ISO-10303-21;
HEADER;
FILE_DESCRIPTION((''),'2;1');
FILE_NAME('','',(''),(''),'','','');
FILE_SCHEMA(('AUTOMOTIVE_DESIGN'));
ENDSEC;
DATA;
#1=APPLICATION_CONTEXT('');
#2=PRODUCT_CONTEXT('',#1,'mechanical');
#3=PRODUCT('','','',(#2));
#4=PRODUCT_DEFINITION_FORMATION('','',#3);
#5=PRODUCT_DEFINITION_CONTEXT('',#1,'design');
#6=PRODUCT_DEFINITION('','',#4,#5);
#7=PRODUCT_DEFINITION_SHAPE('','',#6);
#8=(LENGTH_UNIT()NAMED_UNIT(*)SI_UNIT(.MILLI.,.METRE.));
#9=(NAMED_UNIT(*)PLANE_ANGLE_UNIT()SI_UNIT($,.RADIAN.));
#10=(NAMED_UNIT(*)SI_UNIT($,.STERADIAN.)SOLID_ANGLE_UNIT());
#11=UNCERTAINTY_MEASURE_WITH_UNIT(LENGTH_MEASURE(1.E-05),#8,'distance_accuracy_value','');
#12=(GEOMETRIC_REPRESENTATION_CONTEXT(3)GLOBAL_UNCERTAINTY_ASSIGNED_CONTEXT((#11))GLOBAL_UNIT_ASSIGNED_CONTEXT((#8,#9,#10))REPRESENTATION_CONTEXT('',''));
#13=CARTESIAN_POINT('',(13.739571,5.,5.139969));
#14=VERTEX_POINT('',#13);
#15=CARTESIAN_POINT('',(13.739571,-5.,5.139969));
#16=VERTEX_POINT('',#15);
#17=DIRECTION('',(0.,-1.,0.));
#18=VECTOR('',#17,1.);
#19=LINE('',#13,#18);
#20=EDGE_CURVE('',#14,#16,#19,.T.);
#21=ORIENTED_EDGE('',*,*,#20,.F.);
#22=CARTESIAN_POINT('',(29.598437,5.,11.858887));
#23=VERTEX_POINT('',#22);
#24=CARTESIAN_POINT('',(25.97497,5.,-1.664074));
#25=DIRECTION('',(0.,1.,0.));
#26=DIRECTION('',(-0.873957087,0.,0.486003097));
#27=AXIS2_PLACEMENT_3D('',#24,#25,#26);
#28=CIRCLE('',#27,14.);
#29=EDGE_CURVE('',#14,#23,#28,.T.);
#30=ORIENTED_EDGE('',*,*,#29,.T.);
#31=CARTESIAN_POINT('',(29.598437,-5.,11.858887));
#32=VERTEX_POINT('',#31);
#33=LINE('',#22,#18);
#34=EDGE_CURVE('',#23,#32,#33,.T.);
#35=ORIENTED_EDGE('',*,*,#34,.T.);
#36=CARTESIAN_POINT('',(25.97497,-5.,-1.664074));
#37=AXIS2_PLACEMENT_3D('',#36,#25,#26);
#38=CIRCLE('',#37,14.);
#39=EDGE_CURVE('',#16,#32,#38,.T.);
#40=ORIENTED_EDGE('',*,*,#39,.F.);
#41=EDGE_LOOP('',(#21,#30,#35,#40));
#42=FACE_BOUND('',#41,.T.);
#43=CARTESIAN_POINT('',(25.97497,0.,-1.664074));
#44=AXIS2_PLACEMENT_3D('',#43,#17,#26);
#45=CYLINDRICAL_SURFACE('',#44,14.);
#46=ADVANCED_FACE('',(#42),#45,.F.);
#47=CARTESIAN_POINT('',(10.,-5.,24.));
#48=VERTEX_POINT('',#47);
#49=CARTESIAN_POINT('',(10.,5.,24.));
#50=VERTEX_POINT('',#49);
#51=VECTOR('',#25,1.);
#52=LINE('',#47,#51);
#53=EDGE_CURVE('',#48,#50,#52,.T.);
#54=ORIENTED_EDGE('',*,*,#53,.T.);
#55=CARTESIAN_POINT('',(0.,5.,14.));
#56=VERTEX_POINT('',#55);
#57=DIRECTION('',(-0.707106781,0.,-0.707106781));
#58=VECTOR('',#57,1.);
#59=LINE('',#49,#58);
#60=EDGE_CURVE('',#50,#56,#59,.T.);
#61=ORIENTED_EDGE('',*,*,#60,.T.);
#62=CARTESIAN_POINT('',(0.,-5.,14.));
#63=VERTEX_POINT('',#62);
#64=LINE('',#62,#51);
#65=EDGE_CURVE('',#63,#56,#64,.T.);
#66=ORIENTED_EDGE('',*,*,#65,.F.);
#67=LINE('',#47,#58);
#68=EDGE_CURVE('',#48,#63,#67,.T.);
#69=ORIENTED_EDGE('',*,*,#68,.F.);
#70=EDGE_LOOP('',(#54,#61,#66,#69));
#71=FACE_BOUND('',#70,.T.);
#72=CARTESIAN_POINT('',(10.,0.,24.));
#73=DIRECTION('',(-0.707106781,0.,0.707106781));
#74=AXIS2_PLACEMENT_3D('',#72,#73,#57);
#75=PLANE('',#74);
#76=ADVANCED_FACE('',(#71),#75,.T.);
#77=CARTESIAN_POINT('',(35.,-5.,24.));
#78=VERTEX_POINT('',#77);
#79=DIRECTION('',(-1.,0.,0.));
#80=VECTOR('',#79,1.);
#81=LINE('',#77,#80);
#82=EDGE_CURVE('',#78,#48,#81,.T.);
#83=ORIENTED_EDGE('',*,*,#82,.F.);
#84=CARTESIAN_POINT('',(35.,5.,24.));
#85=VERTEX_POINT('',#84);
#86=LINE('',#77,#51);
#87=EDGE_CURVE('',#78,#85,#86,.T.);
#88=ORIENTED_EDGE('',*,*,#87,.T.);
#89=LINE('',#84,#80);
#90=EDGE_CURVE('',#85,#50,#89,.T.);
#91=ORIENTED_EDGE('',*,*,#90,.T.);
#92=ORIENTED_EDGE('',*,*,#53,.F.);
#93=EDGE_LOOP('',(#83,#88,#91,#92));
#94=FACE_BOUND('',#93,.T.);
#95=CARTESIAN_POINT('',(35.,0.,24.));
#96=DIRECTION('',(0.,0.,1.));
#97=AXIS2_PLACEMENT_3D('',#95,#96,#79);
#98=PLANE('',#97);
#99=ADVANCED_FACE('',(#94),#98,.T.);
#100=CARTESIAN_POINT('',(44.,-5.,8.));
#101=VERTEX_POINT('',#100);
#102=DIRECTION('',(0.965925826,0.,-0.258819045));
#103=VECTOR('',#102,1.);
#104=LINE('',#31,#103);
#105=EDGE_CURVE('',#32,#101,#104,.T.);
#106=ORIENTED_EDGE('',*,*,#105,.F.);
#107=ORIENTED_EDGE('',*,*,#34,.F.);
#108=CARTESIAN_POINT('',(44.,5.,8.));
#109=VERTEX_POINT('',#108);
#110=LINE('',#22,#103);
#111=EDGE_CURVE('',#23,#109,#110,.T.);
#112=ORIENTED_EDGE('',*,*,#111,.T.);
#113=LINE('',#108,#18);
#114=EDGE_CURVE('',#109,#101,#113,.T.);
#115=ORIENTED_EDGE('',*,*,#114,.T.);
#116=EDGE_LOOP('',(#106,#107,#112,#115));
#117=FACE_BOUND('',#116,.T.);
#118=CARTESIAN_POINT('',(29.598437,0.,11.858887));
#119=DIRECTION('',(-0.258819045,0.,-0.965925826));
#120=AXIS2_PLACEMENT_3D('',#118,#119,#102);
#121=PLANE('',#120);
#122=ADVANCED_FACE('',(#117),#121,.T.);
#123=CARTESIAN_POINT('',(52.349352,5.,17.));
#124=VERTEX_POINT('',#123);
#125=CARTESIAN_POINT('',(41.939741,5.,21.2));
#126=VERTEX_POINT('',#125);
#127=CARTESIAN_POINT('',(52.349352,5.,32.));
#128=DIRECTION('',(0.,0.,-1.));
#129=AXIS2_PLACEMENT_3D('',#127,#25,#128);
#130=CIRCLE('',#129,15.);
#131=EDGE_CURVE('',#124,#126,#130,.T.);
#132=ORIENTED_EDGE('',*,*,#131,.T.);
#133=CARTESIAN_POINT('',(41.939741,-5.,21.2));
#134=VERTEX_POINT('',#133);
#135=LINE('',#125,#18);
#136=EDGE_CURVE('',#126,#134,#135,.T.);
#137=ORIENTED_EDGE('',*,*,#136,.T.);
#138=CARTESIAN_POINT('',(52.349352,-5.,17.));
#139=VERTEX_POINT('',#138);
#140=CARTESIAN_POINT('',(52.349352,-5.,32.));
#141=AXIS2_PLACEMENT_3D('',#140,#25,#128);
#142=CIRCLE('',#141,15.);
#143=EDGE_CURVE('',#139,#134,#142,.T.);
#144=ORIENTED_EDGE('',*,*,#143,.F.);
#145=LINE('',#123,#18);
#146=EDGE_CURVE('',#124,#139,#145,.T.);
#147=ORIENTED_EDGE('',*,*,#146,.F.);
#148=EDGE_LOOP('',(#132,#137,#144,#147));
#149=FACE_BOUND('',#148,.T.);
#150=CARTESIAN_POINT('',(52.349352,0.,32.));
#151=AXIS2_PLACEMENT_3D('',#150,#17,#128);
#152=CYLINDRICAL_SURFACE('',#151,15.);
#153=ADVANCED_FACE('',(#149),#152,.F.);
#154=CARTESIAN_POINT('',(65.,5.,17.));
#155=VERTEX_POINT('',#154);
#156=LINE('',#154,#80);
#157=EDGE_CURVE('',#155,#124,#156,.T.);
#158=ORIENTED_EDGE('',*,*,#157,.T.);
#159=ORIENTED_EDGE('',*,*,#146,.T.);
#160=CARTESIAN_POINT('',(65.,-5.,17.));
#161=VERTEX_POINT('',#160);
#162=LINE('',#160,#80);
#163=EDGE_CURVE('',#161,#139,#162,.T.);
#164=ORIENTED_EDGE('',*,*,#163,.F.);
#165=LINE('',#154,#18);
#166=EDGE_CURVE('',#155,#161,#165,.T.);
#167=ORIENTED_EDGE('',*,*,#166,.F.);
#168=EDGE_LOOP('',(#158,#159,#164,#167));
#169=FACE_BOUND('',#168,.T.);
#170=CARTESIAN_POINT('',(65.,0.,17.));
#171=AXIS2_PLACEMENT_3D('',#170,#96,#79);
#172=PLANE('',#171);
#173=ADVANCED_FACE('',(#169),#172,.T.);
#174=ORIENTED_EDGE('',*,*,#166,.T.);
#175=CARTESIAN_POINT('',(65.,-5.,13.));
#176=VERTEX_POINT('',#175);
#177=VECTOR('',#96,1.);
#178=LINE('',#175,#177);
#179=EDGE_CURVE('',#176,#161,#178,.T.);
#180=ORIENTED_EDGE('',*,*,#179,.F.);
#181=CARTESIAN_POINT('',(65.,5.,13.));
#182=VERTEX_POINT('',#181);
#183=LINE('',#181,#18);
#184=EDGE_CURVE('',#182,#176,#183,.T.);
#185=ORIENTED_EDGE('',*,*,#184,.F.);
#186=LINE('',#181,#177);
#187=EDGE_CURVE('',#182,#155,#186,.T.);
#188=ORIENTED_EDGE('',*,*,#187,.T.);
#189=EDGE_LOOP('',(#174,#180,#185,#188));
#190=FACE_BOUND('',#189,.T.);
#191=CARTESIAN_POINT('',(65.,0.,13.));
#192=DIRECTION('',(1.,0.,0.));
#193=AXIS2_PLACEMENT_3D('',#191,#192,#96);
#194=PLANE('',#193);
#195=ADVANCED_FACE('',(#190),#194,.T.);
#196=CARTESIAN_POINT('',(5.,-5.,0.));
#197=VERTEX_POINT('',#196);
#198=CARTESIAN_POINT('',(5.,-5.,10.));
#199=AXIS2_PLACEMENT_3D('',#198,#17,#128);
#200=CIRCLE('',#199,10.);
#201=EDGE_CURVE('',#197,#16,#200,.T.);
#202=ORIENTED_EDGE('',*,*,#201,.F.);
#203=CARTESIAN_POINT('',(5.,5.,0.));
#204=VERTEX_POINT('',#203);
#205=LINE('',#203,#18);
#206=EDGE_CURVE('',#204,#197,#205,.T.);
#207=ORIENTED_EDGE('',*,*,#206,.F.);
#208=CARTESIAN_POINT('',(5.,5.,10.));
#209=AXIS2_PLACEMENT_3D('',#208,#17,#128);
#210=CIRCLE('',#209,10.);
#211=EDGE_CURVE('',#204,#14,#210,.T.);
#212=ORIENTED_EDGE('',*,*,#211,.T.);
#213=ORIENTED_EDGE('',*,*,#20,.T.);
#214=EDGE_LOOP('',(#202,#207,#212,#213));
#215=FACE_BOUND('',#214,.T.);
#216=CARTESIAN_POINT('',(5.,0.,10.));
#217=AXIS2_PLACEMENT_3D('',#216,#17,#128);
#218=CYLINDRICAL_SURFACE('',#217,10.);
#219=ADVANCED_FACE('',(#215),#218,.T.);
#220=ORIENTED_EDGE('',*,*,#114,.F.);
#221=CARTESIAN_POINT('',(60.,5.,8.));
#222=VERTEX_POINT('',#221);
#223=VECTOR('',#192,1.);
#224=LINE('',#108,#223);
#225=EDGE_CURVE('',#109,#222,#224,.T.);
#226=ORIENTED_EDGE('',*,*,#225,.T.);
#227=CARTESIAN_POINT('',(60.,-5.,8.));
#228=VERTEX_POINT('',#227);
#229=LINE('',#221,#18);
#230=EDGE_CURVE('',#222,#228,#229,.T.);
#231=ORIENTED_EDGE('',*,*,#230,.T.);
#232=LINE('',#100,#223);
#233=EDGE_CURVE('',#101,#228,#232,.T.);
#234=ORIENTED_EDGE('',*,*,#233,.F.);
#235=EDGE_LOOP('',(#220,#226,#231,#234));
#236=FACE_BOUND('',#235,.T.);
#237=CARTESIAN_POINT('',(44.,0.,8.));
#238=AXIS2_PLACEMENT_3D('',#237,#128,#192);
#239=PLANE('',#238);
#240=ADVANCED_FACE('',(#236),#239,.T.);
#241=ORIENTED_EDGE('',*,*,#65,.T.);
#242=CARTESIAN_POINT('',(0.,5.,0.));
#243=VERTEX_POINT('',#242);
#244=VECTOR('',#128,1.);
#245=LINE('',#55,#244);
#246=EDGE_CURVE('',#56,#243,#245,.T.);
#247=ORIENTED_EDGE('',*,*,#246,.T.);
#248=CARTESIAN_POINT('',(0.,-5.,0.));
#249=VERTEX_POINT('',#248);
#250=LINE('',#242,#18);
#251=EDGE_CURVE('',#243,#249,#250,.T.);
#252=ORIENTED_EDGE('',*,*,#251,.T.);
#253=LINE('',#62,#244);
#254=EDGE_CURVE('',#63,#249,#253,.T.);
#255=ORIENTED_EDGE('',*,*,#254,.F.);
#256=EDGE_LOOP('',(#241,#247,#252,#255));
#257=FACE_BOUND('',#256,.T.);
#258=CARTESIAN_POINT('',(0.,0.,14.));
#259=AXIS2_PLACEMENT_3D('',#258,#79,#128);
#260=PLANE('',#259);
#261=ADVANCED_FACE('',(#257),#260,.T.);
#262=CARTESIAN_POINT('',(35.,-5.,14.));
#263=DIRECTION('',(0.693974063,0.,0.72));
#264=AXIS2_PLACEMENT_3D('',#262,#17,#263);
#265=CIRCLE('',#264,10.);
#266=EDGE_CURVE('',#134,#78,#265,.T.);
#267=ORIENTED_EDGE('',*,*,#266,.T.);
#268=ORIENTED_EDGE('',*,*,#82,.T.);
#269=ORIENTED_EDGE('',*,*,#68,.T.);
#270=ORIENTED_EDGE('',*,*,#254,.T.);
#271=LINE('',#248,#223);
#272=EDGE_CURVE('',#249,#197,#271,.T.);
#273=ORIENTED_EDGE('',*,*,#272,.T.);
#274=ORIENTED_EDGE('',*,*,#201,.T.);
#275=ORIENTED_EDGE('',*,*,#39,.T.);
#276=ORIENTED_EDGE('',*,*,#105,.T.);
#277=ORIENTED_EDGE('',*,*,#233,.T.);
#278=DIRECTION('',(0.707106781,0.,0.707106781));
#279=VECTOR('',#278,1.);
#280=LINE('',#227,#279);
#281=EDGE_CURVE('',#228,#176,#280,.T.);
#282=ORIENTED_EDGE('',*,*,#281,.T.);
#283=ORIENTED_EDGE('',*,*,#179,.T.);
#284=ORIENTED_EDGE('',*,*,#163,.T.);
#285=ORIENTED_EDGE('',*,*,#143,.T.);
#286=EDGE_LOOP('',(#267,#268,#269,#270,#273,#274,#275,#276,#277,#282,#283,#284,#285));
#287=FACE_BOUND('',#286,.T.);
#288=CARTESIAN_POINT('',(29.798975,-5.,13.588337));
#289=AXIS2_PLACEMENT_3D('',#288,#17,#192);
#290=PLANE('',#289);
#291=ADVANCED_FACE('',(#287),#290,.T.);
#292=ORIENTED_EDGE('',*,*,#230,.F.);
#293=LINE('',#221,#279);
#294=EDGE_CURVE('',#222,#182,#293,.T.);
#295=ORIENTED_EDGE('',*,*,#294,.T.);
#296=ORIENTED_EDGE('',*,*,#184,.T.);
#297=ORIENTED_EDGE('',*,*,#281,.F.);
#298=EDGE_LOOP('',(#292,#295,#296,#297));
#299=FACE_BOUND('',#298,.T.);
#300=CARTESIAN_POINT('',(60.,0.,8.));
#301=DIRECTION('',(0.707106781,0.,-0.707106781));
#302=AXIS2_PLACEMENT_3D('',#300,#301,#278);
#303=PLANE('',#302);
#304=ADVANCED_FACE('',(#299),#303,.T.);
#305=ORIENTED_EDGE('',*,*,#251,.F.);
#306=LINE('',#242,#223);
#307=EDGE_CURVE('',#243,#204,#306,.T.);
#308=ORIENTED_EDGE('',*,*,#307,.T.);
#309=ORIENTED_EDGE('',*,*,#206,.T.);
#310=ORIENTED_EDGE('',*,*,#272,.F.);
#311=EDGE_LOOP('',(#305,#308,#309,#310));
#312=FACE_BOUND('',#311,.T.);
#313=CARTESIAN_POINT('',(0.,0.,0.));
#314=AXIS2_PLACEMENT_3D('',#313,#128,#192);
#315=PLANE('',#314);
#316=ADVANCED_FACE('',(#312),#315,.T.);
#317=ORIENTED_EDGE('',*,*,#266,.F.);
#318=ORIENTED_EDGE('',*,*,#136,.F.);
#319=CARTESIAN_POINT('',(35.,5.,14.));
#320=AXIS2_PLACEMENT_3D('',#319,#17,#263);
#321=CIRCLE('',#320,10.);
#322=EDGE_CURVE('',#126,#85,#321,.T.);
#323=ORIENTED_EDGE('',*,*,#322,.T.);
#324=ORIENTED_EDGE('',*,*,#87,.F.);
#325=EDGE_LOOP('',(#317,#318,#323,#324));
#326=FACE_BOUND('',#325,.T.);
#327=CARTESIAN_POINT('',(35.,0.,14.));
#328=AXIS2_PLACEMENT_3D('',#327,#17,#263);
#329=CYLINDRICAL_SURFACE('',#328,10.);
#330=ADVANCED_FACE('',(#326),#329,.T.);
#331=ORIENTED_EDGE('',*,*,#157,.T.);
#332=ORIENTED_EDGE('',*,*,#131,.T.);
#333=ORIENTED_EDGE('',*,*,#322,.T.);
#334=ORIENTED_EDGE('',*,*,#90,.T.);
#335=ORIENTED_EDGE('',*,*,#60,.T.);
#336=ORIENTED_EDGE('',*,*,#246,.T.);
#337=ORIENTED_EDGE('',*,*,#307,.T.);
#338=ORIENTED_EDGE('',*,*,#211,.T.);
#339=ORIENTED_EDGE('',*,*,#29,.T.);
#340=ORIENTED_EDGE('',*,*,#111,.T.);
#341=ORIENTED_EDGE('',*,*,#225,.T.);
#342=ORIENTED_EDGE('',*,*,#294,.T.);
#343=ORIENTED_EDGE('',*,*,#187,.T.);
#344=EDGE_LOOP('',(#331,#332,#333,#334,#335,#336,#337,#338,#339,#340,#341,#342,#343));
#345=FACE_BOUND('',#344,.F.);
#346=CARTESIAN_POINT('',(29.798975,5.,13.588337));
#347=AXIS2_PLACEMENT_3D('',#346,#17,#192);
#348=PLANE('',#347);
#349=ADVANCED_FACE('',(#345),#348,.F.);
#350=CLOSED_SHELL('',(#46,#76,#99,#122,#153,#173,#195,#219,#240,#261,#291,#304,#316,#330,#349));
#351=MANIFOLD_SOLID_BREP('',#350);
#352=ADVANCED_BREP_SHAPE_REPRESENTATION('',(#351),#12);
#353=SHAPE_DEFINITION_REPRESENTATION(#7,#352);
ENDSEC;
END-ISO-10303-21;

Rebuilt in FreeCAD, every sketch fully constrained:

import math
import FreeCAD as App
import Part
import Sketcher
from FreeCAD import Vector
Q = App.Units.Quantity

doc = App.newDocument("Part")
params = doc.addObject("Spreadsheet::Sheet", "Params")
for row, (alias, value) in enumerate([
    ("sketch1_radius", "10 mm"),
    ("sketch1_radius2", "14 mm"),
    ("sketch1_radius3", "15 mm"),
    ("sketch1_width", "5 mm"),
    ("sketch1_width2", "16 mm"),
    ("pad1_length", "10 mm"),
], start=1):
    params.set(f"A{row}", alias)
    params.set(f"B{row}", "=" + value)
    params.setAlias(f"B{row}", alias)

body = doc.addObject("PartDesign::Body", "Body")

sketch1 = body.newObject("Sketcher::SketchObject", "Sketch")
sketch1.AttachmentSupport = (doc.getObject("XZ_Plane"), [""])
sketch1.MapMode = "FlatFace"
sketch1.addGeometry([
    Part.LineSegment(Vector(0, 14, 0), Vector(0, 0, 0)),
    Part.LineSegment(Vector(0, 0, 0), Vector(5, 0, 0)),
    Part.ArcOfCircle(Part.Circle(Vector(5, 10, 0), Vector(0, 0, 1), 10), math.radians(-90), math.radians(-29)),
    Part.ArcOfCircle(Part.Circle(Vector(26, -1.7, 0), Vector(0, 0, 1), 14), math.radians(75), math.radians(151)),
    Part.LineSegment(Vector(29.6, 11.9, 0), Vector(44, 8, 0)),
    Part.LineSegment(Vector(44, 8, 0), Vector(60, 8, 0)),
    Part.LineSegment(Vector(60, 8, 0), Vector(65, 13, 0)),
    Part.LineSegment(Vector(65, 13, 0), Vector(65, 17, 0)),
    Part.LineSegment(Vector(65, 17, 0), Vector(52.3, 17, 0)),
    Part.ArcOfCircle(Part.Circle(Vector(52.3, 32, 0), Vector(0, 0, 1), 15), math.radians(-134), math.radians(-90)),
    Part.ArcOfCircle(Part.Circle(Vector(35, 14, 0), Vector(0, 0, 1), 10), math.radians(46), math.radians(90)),
    Part.LineSegment(Vector(35, 24, 0), Vector(10, 24, 0)),
    Part.LineSegment(Vector(10, 24, 0), Vector(0, 14, 0)),
], False)
sketch1.addConstraint([
    Sketcher.Constraint("Coincident", 0, 2, 1, 1),
    Sketcher.Constraint("Tangent", 1, 2, 2, 1),
    Sketcher.Constraint("Tangent", 2, 2, 3, 2),
    Sketcher.Constraint("Tangent", 3, 1, 4, 1),
    Sketcher.Constraint("Coincident", 4, 2, 5, 1),
    Sketcher.Constraint("Coincident", 5, 2, 6, 1),
    Sketcher.Constraint("Coincident", 6, 2, 7, 1),
    Sketcher.Constraint("Coincident", 7, 2, 8, 1),
    Sketcher.Constraint("Tangent", 8, 2, 9, 2),
    Sketcher.Constraint("Tangent", 9, 1, 10, 1),
    Sketcher.Constraint("Tangent", 10, 2, 11, 1),
    Sketcher.Constraint("Coincident", 11, 2, 12, 1),
    Sketcher.Constraint("Coincident", 12, 2, 0, 1),
    Sketcher.Constraint("Vertical", 0),
    Sketcher.Constraint("Horizontal", 1),
    Sketcher.Constraint("Horizontal", 5),
    Sketcher.Constraint("Vertical", 7),
    Sketcher.Constraint("Horizontal", 8),
    Sketcher.Constraint("Horizontal", 11),
    Sketcher.Constraint("Coincident", 0, 2, -1, 1),
    Sketcher.Constraint("Equal", 2, 10),
    Sketcher.Constraint("Parallel", 6, 12),
    Sketcher.Constraint("Horizontal", 10, 3, 12, 2),
    Sketcher.Constraint("Radius", 2, 10.0),
    Sketcher.Constraint("Radius", 3, 14.0),
    Sketcher.Constraint("Radius", 9, 15.0),
    Sketcher.Constraint("DistanceX", 1, 1, 1, 2, 5.0),
    Sketcher.Constraint("DistanceX", 5, 1, 5, 2, 16.0),
    Sketcher.Constraint("DistanceX", 11, 2, 11, 1, 25.0),
    Sketcher.Constraint("DistanceY", 0, 2, 0, 1, 14.0),
    Sketcher.Constraint("DistanceY", 7, 1, 7, 2, 4.0),
    Sketcher.Constraint("Angle", 4, Q("-15 deg")),
    Sketcher.Constraint("Angle", 6, Q("45 deg")),
    Sketcher.Constraint("DistanceY", -1, 1, 9, 3, 32.0),
    Sketcher.Constraint("DistanceX", -1, 1, 4, 2, 44.0),
    Sketcher.Constraint("DistanceY", -1, 1, 4, 2, 8.0),
])
sketch1.setExpression("Constraints[23]", "Params.sketch1_radius")
sketch1.setExpression("Constraints[24]", "Params.sketch1_radius2")
sketch1.setExpression("Constraints[25]", "Params.sketch1_radius3")
sketch1.setExpression("Constraints[26]", "Params.sketch1_width")
sketch1.setExpression("Constraints[27]", "Params.sketch1_width2")
pad1 = body.newObject("PartDesign::Pad", "Pad")
pad1.Profile = sketch1
pad1.setExpression("Length", "Params.pad1_length")
pad1.Midplane = True

doc.recompute()
